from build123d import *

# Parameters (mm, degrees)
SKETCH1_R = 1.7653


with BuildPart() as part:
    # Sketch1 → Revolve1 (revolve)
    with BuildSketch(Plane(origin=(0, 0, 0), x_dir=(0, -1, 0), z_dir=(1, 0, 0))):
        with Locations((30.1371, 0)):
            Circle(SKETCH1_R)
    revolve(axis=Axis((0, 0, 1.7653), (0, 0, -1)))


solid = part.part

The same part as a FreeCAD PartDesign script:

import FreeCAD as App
import Part
import Sketcher

V = App.Vector
Q = App.Units.Quantity

doc = App.newDocument("Part")
params = doc.addObject("Spreadsheet::Sheet", "Params")
for row, (alias, value) in enumerate([
    ("sketch1_diameter", "0.139 in"),
    ("revolution_angle", "360 deg"),
], start=1):
    params.set(f"A{row}", alias)
    params.set(f"B{row}", "=" + value)
    params.setAlias(f"B{row}", alias)

body = doc.addObject("PartDesign::Body", "Body")

# Sketch on YZ plane
sketch1 = doc.addObject("Sketcher::SketchObject", "Sketch")
body.addObject(sketch1)
sketch1.AttachmentSupport = (doc.YZ_Plane, [""])
sketch1.MapMode = "FlatFace"
sketch1.addGeometry(Part.Circle(V(-30.1, 0, 0), V(0, 0, 1), 1.8), False)
sketch1.addConstraint([
    Sketcher.Constraint("PointOnObject", 0, 3, -1),
    Sketcher.Constraint("Diameter", 0, Q("0.139 in")),
    Sketcher.Constraint("DistanceX", 0, 3, -1, 1, Q("1.1865 in")),
])
sketch1.setExpression("Constraints[1]", "Params.sketch1_diameter")
revolution = doc.addObject("PartDesign::Revolution", "Revolution")
body.addObject(revolution)
revolution.Profile = sketch1
revolution.ReferenceAxis = (sketch1, ["V_Axis"])
revolution.setExpression("Angle", "Params.revolution_angle")

doc.recompute()
